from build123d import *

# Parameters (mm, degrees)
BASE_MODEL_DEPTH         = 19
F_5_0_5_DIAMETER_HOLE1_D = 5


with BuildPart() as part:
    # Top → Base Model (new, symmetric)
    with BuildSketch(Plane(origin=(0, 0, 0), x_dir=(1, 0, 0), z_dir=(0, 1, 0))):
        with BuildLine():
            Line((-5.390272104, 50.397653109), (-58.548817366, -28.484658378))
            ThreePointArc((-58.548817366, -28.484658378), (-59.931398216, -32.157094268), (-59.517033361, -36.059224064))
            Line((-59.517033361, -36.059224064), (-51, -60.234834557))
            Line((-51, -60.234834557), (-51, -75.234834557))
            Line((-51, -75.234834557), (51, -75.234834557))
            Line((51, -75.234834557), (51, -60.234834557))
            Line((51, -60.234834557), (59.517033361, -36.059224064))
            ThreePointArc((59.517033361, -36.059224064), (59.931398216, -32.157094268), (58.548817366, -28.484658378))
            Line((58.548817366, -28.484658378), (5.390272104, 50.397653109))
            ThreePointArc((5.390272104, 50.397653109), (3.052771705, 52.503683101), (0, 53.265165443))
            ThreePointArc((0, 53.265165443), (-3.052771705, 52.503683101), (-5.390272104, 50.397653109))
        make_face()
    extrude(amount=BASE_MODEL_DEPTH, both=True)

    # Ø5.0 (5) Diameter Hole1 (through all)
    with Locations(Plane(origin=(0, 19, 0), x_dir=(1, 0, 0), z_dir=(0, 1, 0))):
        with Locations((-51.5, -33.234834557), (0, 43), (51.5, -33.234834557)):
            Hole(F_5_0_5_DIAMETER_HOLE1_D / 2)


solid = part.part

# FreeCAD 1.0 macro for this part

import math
import FreeCAD as App
import Part
import Sketcher

V = App.Vector

doc = App.newDocument("Part")
params = doc.addObject("Spreadsheet::Sheet", "Params")
for row, (alias, value) in enumerate([
    ("sketch1_radius", "8.5 mm"),
    ("sketch1_radius2", "6.5 mm"),
    ("sketch1_width", "102 mm"),
    ("sketch1_height", "15 mm"),
    ("pad1_length", "38 mm"),
    ("sketch2_diameter", "5 mm"),
    ("hole_diameter", "5 mm"),
], start=1):
    params.set(f"A{row}", alias)
    params.set(f"B{row}", "=" + value)
    params.setAlias(f"B{row}", alias)

body = doc.addObject("PartDesign::Body", "Body")

sketch1 = doc.addObject("Sketcher::SketchObject", "Sketch")
body.addObject(sketch1)
sketch1.AttachmentSupport = (doc.XZ_Plane, [""])
sketch1.MapMode = "FlatFace"
sketch1.addGeometry(Part.LineSegment(V(-5, -50, 0), V(-59, 28, 0)), False)
sketch1.addGeometry(Part.ArcOfCircle(Part.Circle(V(-52, 33, 0), V(0, 0, 1), 8), math.radians(161), math.radians(214)), False)
sketch1.addGeometry(Part.LineSegment(V(-60, 36, 0), V(-51, 60, 0)), False)
sketch1.addGeometry(Part.LineSegment(V(-51, 60, 0), V(-51, 75, 0)), False)
sketch1.addGeometry(Part.LineSegment(V(-51, 75, 0), V(51, 75, 0)), False)
sketch1.addGeometry(Part.LineSegment(V(51, 75, 0), V(51, 60, 0)), False)
sketch1.addGeometry(Part.LineSegment(V(51, 60, 0), V(60, 36, 0)), False)
sketch1.addGeometry(Part.ArcOfCircle(Part.Circle(V(52, 33, 0), V(0, 0, 1), 8), math.radians(-34), math.radians(19)), False)
sketch1.addGeometry(Part.LineSegment(V(59, 28, 0), V(5, -50, 0)), False)
sketch1.addGeometry(Part.ArcOfCircle(Part.Circle(V(0, -47, 0), V(0, 0, 1), 7), math.radians(-90), math.radians(-34)), False)
sketch1.addGeometry(Part.ArcOfCircle(Part.Circle(V(0, -47, 0), V(0, 0, 1), 7), math.radians(-146), math.radians(-90)), False)
sketch1.addConstraint(Sketcher.Constraint("Tangent", 0, 2, 1, 2))
sketch1.addConstraint(Sketcher.Constraint("Tangent", 1, 1, 2, 1))
sketch1.addConstraint(Sketcher.Constraint("Coincident", 2, 2, 3, 1))
sketch1.addConstraint(Sketcher.Constraint("Coincident", 3, 2, 4, 1))
sketch1.addConstraint(Sketcher.Constraint("Coincident", 4, 2, 5, 1))
sketch1.addConstraint(Sketcher.Constraint("Coincident", 5, 2, 6, 1))
sketch1.addConstraint(Sketcher.Constraint("Tangent", 6, 2, 7, 2))
sketch1.addConstraint(Sketcher.Constraint("Tangent", 7, 1, 8, 1))
sketch1.addConstraint(Sketcher.Constraint("Tangent", 8, 2, 9, 2))
sketch1.addConstraint(Sketcher.Constraint("Tangent", 9, 1, 10, 2))
sketch1.addConstraint(Sketcher.Constraint("Tangent", 10, 1, 0, 1))
sketch1.addConstraint(Sketcher.Constraint("Vertical", 3))
sketch1.addConstraint(Sketcher.Constraint("Horizontal", 4))
sketch1.addConstraint(Sketcher.Constraint("Vertical", 5))
sketch1.addConstraint(Sketcher.Constraint("Equal", 1, 7))
sketch1.addConstraint(Sketcher.Constraint("Equal", 9, 10))
sketch1.addConstraint(Sketcher.Constraint("Symmetric", 1, 3, 7, 3, -2))
sketch1.addConstraint(Sketcher.Constraint("Symmetric", 2, 2, 5, 2, -2))
sketch1.addConstraint(Sketcher.Constraint("PointOnObject", 9, 3, -2))
sketch1.addConstraint(Sketcher.Constraint("PointOnObject", 9, 1, -2))
sketch1.addConstraint(Sketcher.Constraint("Radius", 1, 8.5))
sketch1.addConstraint(Sketcher.Constraint("Radius", 9, 6.5))
sketch1.addConstraint(Sketcher.Constraint("DistanceX", 4, 1, 4, 2, 102.0))
sketch1.addConstraint(Sketcher.Constraint("DistanceY", 3, 1, 3, 2, 15.0))
sketch1.addConstraint(Sketcher.Constraint("DistanceX", 1, 3, 7, 3, 103.0))
sketch1.addConstraint(Sketcher.Constraint("DistanceY", 9, 3, 1, 3, 80.0))
sketch1.addConstraint(Sketcher.Constraint("DistanceY", 1, 3, 2, 2, 27.0))
sketch1.addConstraint(Sketcher.Constraint("DistanceY", -1, 1, 0, 2, 28.484658))
sketch1.setExpression("Constraints[20]", "Params.sketch1_radius")
sketch1.setExpression("Constraints[21]", "Params.sketch1_radius2")
sketch1.setExpression("Constraints[22]", "Params.sketch1_width")
sketch1.setExpression("Constraints[23]", "Params.sketch1_height")
pad1 = doc.addObject("PartDesign::Pad", "Pad")
body.addObject(pad1)
pad1.Profile = sketch1
pad1.setExpression("Length", "Params.pad1_length")
pad1.Midplane = True

sketch2 = doc.addObject("Sketcher::SketchObject", "Sketch001")
body.addObject(sketch2)
sketch2.AttachmentSupport = (doc.XZ_Plane, [""])
sketch2.MapMode = "FlatFace"
sketch2.AttachmentOffset = App.Placement(V(0, 0, -19), App.Rotation())
sketch2.addGeometry(Part.Circle(V(-51.5, 33.2, 0), V(0, 0, 1), 2.5), False)
sketch2.addGeometry(Part.Circle(V(0, -43, 0), V(0, 0, 1), 2.5), False)
sketch2.addGeometry(Part.Circle(V(51.5, 33.2, 0), V(0, 0, 1), 2.5), False)
sketch2.addConstraint(Sketcher.Constraint("Equal", 0, 1))
sketch2.addConstraint(Sketcher.Constraint("Equal", 1, 2))
sketch2.addConstraint(Sketcher.Constraint("Symmetric", 0, 3, 2, 3, -2))
sketch2.addConstraint(Sketcher.Constraint("PointOnObject", 1, 3, -2))
sketch2.addConstraint(Sketcher.Constraint("Diameter", 0, 5.0))
sketch2.addConstraint(Sketcher.Constraint("DistanceY", 1, 3, -1, 1, 43.0))
sketch2.addConstraint(Sketcher.Constraint("DistanceX", 0, 3, 2, 3, 103.0))
sketch2.addConstraint(Sketcher.Constraint("DistanceY", -1, 1, 0, 3, 33.234835))
sketch2.setExpression("Constraints[4]", "Params.sketch2_diameter")
doc.recompute()
hole = doc.addObject("PartDesign::Hole", "Hole")
body.addObject(hole)
hole.Profile = sketch2
hole.ThreadType = "None"
hole.setExpression("Diameter", "Params.hole_diameter")
hole.DepthType = "ThroughAll"
hole.Reversed = True

doc.recompute()
